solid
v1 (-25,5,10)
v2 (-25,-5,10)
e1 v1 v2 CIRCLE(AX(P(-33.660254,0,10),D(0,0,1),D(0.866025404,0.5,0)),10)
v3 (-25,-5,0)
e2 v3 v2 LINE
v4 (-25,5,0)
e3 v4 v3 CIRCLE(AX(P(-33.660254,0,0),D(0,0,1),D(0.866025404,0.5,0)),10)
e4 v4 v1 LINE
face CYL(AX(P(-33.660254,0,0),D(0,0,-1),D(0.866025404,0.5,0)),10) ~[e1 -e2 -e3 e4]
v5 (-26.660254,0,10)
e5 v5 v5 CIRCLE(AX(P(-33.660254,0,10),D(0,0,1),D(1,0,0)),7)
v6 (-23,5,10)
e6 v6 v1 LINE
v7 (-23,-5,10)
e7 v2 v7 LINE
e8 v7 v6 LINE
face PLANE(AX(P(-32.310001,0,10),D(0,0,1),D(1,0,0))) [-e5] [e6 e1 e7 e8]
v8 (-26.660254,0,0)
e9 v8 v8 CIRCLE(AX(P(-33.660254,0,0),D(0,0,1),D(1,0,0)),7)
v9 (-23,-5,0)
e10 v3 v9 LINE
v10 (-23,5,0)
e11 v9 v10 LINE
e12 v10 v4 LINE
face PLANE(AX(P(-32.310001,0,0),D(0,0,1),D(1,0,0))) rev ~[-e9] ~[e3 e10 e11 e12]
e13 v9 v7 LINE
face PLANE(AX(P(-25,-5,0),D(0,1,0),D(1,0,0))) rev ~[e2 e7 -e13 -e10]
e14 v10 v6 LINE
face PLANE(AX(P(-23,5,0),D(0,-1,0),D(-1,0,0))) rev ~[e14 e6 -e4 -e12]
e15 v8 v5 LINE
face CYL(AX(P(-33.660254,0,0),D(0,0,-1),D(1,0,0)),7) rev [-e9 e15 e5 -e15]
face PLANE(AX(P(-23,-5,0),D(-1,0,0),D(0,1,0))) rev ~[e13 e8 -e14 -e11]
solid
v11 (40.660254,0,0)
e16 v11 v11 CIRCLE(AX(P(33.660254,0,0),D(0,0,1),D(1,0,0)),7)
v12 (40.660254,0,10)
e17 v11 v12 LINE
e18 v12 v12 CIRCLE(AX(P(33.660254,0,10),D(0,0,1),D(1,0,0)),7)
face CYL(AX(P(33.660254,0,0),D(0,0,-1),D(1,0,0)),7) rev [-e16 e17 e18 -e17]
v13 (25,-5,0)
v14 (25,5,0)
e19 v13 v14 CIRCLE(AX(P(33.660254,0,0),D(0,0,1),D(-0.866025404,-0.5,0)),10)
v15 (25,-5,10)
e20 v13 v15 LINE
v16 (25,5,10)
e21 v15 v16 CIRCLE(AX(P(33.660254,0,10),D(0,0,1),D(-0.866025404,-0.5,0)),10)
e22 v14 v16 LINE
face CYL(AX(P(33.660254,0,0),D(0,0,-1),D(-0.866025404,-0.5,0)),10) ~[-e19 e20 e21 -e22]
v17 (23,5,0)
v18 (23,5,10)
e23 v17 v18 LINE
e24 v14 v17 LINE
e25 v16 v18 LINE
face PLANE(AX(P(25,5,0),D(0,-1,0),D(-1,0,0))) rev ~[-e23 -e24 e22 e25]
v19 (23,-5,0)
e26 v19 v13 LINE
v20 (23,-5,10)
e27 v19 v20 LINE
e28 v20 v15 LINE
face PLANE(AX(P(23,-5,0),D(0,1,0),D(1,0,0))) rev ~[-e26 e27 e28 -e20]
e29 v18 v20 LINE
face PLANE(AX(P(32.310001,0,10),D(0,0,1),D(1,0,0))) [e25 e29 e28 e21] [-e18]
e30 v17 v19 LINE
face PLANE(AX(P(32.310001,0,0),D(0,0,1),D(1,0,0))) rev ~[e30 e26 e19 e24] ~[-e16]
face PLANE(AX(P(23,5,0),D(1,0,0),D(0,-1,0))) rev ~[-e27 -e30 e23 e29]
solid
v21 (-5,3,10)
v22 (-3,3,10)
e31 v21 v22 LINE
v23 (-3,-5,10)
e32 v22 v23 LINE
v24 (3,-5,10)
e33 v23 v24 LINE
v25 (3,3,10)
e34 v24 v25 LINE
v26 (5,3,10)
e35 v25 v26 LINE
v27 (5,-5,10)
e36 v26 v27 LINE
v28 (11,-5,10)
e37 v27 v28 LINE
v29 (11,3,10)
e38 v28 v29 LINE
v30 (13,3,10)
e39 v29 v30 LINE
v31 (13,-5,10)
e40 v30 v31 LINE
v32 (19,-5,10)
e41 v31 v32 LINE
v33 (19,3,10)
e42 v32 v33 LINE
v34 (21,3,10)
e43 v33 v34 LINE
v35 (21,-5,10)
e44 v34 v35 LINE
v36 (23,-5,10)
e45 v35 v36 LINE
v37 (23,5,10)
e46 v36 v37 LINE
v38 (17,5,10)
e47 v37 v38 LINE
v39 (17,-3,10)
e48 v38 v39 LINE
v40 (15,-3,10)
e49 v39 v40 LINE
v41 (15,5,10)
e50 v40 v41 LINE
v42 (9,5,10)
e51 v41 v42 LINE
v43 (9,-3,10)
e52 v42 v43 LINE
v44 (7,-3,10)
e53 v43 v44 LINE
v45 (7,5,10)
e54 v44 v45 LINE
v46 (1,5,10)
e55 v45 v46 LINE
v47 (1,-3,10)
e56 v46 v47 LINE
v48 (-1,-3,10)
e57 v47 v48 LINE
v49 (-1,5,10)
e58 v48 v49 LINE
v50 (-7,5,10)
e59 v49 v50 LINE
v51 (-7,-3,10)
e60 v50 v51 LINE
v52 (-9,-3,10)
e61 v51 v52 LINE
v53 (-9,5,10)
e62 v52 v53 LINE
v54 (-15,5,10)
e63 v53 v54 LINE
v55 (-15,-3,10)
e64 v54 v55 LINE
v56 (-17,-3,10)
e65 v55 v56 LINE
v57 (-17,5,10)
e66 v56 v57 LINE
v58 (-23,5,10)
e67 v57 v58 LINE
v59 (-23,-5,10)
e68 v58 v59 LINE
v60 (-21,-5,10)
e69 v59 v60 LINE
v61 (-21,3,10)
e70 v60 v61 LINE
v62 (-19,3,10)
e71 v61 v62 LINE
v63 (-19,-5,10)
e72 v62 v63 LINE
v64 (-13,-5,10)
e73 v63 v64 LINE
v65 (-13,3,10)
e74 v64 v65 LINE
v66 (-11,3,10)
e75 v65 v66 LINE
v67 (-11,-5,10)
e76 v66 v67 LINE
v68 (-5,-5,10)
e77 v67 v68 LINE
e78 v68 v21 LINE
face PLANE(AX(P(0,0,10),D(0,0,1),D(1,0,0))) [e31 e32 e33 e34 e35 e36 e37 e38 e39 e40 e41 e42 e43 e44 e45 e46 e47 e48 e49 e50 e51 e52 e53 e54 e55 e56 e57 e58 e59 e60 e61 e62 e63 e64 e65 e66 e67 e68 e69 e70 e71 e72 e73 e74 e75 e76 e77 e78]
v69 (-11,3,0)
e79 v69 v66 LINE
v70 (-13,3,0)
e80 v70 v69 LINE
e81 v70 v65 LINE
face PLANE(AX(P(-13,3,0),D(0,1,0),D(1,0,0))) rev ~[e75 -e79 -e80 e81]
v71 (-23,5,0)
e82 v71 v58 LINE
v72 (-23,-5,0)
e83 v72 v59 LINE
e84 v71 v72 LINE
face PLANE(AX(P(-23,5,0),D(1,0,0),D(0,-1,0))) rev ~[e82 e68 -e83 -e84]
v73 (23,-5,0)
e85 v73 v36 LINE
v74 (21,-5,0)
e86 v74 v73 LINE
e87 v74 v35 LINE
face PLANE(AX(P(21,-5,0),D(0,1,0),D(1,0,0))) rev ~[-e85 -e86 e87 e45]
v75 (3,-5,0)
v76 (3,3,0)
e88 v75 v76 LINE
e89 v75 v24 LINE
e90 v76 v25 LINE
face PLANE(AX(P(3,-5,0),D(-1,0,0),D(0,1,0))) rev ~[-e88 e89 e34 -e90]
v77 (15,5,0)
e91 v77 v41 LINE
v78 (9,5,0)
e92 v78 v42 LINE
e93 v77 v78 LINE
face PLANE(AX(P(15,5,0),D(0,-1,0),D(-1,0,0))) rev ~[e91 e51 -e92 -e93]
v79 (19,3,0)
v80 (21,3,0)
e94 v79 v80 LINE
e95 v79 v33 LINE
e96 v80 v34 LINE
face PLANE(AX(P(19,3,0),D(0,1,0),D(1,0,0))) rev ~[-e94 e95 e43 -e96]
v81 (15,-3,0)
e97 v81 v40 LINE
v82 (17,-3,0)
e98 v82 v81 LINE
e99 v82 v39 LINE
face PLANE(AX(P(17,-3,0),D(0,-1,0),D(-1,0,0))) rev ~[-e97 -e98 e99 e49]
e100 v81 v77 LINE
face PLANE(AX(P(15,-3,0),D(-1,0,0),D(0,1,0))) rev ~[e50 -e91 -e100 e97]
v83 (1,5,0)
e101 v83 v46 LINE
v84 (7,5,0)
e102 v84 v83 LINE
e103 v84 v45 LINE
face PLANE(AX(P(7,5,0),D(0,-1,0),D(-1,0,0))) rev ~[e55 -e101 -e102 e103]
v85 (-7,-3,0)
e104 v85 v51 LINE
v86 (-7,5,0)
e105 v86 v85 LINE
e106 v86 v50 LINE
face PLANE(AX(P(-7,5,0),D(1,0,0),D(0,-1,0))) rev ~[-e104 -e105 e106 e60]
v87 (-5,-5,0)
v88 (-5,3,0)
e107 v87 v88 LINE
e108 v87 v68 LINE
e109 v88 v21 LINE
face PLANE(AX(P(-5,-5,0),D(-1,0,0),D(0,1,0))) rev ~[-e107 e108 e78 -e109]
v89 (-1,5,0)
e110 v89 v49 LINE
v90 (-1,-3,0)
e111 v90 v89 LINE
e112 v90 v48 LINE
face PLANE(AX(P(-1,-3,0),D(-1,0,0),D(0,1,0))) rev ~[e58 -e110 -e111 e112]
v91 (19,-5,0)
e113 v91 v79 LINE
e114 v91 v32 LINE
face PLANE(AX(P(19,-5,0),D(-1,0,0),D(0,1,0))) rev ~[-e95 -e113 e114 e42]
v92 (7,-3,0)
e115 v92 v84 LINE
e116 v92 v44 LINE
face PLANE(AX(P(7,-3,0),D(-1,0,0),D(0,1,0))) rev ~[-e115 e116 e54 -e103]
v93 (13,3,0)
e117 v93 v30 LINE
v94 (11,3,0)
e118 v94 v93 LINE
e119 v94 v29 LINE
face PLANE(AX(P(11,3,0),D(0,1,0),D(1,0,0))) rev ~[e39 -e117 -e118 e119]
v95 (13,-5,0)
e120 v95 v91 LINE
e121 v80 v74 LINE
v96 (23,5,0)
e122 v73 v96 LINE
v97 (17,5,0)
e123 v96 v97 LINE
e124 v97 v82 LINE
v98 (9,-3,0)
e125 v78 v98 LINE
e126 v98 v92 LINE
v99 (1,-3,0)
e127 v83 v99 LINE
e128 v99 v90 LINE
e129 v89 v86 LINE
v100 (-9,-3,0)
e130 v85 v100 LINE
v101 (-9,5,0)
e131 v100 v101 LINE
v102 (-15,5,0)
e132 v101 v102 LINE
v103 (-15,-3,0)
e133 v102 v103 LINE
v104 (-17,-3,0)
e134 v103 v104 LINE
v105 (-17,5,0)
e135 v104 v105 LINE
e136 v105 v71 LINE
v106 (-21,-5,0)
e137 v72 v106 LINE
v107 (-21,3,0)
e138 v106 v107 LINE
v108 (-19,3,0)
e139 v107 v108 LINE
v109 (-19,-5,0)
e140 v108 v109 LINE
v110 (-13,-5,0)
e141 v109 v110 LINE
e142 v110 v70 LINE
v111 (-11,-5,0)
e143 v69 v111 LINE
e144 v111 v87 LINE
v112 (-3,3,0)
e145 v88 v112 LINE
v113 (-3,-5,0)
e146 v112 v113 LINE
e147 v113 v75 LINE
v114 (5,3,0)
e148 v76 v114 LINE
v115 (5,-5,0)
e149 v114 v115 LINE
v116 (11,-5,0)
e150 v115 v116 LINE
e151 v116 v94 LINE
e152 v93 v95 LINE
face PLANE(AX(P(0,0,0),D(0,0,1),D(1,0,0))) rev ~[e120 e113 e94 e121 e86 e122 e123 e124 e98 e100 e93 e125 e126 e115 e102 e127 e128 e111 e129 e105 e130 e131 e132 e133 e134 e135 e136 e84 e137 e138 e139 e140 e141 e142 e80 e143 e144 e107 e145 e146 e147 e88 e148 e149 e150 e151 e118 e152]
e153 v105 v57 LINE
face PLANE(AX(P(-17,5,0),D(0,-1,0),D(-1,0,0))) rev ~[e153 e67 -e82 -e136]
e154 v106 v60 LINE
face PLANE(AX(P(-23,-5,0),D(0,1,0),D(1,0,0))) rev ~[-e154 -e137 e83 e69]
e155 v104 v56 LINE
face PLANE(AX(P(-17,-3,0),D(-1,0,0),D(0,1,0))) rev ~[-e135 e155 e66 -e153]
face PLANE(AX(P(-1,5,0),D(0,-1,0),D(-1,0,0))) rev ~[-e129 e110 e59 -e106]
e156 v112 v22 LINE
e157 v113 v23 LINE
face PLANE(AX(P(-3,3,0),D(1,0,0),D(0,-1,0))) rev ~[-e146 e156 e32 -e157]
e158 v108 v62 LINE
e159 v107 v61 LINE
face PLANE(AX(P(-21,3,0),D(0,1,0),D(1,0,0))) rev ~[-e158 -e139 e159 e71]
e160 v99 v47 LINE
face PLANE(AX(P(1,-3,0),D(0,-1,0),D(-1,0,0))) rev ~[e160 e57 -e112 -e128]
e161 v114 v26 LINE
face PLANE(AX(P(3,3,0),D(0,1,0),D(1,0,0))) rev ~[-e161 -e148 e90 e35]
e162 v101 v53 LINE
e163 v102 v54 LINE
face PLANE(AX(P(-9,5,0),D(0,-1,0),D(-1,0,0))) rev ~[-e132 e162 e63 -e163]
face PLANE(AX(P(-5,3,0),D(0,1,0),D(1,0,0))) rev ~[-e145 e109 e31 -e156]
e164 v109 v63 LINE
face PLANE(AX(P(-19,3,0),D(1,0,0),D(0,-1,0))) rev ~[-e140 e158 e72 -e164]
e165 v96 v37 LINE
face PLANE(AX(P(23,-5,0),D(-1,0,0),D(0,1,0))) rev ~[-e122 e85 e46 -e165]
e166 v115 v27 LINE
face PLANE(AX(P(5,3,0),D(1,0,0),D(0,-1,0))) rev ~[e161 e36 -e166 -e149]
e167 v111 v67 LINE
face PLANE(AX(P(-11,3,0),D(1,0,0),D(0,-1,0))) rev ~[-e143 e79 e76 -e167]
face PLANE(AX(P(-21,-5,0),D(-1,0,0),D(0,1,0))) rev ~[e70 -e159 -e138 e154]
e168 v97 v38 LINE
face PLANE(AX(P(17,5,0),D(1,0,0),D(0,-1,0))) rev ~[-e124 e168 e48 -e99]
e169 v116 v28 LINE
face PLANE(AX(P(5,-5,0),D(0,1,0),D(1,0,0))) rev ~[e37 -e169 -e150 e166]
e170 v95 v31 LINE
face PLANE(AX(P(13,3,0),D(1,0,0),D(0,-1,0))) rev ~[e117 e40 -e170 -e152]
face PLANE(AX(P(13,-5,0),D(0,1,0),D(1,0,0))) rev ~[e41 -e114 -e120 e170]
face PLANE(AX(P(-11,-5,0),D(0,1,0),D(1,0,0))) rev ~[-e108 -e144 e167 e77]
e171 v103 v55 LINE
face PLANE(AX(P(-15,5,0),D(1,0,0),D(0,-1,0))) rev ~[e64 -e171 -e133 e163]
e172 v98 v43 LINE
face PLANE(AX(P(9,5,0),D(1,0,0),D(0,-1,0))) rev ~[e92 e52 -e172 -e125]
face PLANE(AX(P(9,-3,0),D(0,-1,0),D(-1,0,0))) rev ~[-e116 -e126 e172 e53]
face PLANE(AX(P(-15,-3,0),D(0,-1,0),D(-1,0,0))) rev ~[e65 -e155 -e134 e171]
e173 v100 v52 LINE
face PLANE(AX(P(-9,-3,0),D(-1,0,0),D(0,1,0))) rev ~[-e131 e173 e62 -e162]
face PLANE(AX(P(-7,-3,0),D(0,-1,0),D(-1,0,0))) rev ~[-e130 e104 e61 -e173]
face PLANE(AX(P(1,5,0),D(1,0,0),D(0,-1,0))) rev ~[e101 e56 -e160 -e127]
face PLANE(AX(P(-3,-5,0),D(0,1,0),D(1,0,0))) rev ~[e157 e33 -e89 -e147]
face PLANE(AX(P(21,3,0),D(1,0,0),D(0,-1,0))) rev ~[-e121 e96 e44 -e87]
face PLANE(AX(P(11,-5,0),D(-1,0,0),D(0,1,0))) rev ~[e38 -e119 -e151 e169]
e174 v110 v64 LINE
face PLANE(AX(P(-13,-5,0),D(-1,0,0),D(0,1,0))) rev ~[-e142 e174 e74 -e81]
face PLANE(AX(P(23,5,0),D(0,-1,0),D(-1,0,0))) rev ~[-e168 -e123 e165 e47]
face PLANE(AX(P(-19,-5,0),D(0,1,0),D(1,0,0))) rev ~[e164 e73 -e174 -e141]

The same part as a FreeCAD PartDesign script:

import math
import FreeCAD as App
import Part
import Sketcher

V = App.Vector


def add_polygon(sketch, points):
    """Adds a closed chain of lines whose ends are joined by coincident constraints."""
    first, n = sketch.GeometryCount, len(points)
    for a, b in zip(points, points[1:] + points[:1]):
        sketch.addGeometry(Part.LineSegment(App.Vector(*a, 0), App.Vector(*b, 0)), False)
    for i in range(n):
        sketch.addConstraint(Sketcher.Constraint("Coincident", first + i, 2, first + (i + 1) % n, 1))

doc = App.newDocument("Part")
body = doc.addObject("PartDesign::Body", "Body")

sketch1 = doc.addObject("Sketcher::SketchObject", "Sketch")
body.addObject(sketch1)
sketch1.AttachmentSupport = (doc.XY_Plane, [""])
sketch1.MapMode = "FlatFace"
sketch1.addGeometry([
    Part.LineSegment(V(-23, 5, 0), V(-25, 5, 0)),
    Part.ArcOfCircle(Part.Circle(V(-33.7, 0, 0), V(0, 0, 1), 10), math.radians(30), math.radians(330)),
    Part.LineSegment(V(-25, -5, 0), V(-23, -5, 0)),
    Part.LineSegment(V(-23, -5, 0), V(-23, 5, 0)),
    Part.Circle(V(-33.7, 0, 0), V(0, 0, 1), 7),
], False)
sketch1.addConstraint([
    Sketcher.Constraint("Coincident", 0, 2, 1, 1),
    Sketcher.Constraint("Coincident", 1, 2, 2, 1),
    Sketcher.Constraint("Coincident", 2, 2, 3, 1),
    Sketcher.Constraint("Coincident", 3, 2, 0, 1),
    Sketcher.Constraint("Horizontal", 0),
    Sketcher.Constraint("Horizontal", 2),
    Sketcher.Constraint("Vertical", 3),
    Sketcher.Constraint("Coincident", 4, 3, 1, 3),
    Sketcher.Constraint("Symmetric", 0, 2, 1, 2, -1),
    Sketcher.Constraint("Diameter", 4, 14.0),
    Sketcher.Constraint("Radius", 1, 10.0),
    Sketcher.Constraint("DistanceX", 0, 2, 0, 1, 2.0),
    Sketcher.Constraint("DistanceY", 3, 1, 3, 2, 10.0),
    Sketcher.Constraint("DistanceX", 0, 2, -1, 1, 25.0),
])
pad1 = doc.addObject("PartDesign::Pad", "Pad")
body.addObject(pad1)
pad1.Profile = sketch1
pad1.Length = 10
body2 = doc.addObject("PartDesign::Body", "Body001")

sketch2 = doc.addObject("Sketcher::SketchObject", "Sketch001")
body2.addObject(sketch2)
sketch2.AttachmentSupport = (doc.getObject("XY_Plane001"), [""])
sketch2.MapMode = "FlatFace"
sketch2.addGeometry([
    Part.LineSegment(V(25, 5, 0), V(23, 5, 0)),
    Part.LineSegment(V(23, 5, 0), V(23, -5, 0)),
    Part.LineSegment(V(23, -5, 0), V(25, -5, 0)),
    Part.ArcOfCircle(Part.Circle(V(33.7, 0, 0), V(0, 0, 1), 10), math.radians(-150), math.radians(150)),
    Part.Circle(V(33.7, 0, 0), V(0, 0, 1), 7),
], False)
sketch2.addConstraint([
    Sketcher.Constraint("Coincident", 0, 2, 1, 1),
    Sketcher.Constraint("Coincident", 1, 2, 2, 1),
    Sketcher.Constraint("Coincident", 2, 2, 3, 1),
    Sketcher.Constraint("Coincident", 3, 2, 0, 1),
    Sketcher.Constraint("Horizontal", 0),
    Sketcher.Constraint("Vertical", 1),
    Sketcher.Constraint("Horizontal", 2),
    Sketcher.Constraint("Coincident", 4, 3, 3, 3),
    Sketcher.Constraint("Symmetric", 2, 2, 3, 2, -1),
    Sketcher.Constraint("Diameter", 4, 14.0),
    Sketcher.Constraint("Radius", 3, 10.0),
    Sketcher.Constraint("DistanceX", 0, 2, 0, 1, 2.0),
    Sketcher.Constraint("DistanceY", 1, 2, 1, 1, 10.0),
    Sketcher.Constraint("DistanceX", -1, 1, 0, 2, 23.0),
])
pad2 = doc.addObject("PartDesign::Pad", "Pad001")
body2.addObject(pad2)
pad2.Profile = sketch2
pad2.Length = 10
body3 = doc.addObject("PartDesign::Body", "Body002")

sketch3 = doc.addObject("Sketcher::SketchObject", "Sketch002")
body3.addObject(sketch3)
sketch3.AttachmentSupport = (doc.getObject("XY_Plane002"), [""])
sketch3.MapMode = "FlatFace"
add_polygon(sketch3, [(-17, 5), (-23, 5), (-23, -5), (-21, -5), (-21, 3), (-19, 3), (-19, -5), (-13, -5), (-13, 3), (-11, 3), (-11, -5), (-5, -5), (-5, 3), (-3, 3), (-3, -5), (3, -5), (3, 3), (5, 3), (5, -5), (11, -5), (11, 3), (13, 3), (13, -5), (19, -5), (19, 3), (21, 3), (21, -5), (23, -5), (23, 5), (17, 5), (17, -3), (15, -3), (15, 5), (9, 5), (9, -3), (7, -3), (7, 5), (1, 5), (1, -3), (-1, -3), (-1, 5), (-7, 5), (-7, -3), (-9, -3), (-9, 5), (-15, 5), (-15, -3), (-17, -3)])
sketch3.addConstraint([
    Sketcher.Constraint("Horizontal", 0),
    Sketcher.Constraint("Vertical", 1),
    Sketcher.Constraint("Horizontal", 2),
    Sketcher.Constraint("Vertical", 3),
    Sketcher.Constraint("Horizontal", 4),
    Sketcher.Constraint("Vertical", 5),
    Sketcher.Constraint("Horizontal", 6),
    Sketcher.Constraint("Vertical", 7),
    Sketcher.Constraint("Horizontal", 8),
    Sketcher.Constraint("Vertical", 9),
    Sketcher.Constraint("Horizontal", 10),
    Sketcher.Constraint("Vertical", 11),
    Sketcher.Constraint("Horizontal", 12),
    Sketcher.Constraint("Vertical", 13),
    Sketcher.Constraint("Horizontal", 14),
    Sketcher.Constraint("Vertical", 15),
    Sketcher.Constraint("Horizontal", 16),
    Sketcher.Constraint("Vertical", 17),
    Sketcher.Constraint("Horizontal", 18),
    Sketcher.Constraint("Vertical", 19),
    Sketcher.Constraint("Horizontal", 20),
    Sketcher.Constraint("Vertical", 21),
    Sketcher.Constraint("Horizontal", 22),
    Sketcher.Constraint("Vertical", 23),
    Sketcher.Constraint("Horizontal", 24),
    Sketcher.Constraint("Vertical", 25),
    Sketcher.Constraint("Horizontal", 26),
    Sketcher.Constraint("Vertical", 27),
    Sketcher.Constraint("Horizontal", 28),
    Sketcher.Constraint("Vertical", 29),
    Sketcher.Constraint("Horizontal", 30),
    Sketcher.Constraint("Vertical", 31),
    Sketcher.Constraint("Horizontal", 32),
    Sketcher.Constraint("Vertical", 33),
    Sketcher.Constraint("Horizontal", 34),
    Sketcher.Constraint("Vertical", 35),
    Sketcher.Constraint("Horizontal", 36),
    Sketcher.Constraint("Vertical", 37),
    Sketcher.Constraint("Horizontal", 38),
    Sketcher.Constraint("Vertical", 39),
    Sketcher.Constraint("Horizontal", 40),
    Sketcher.Constraint("Vertical", 41),
    Sketcher.Constraint("Horizontal", 42),
    Sketcher.Constraint("Vertical", 43),
    Sketcher.Constraint("Horizontal", 44),
    Sketcher.Constraint("Vertical", 45),
    Sketcher.Constraint("Horizontal", 46),
    Sketcher.Constraint("Vertical", 47),
    Sketcher.Constraint("Symmetric", 0, 2, 26, 2, -1, 1),
    Sketcher.Constraint("Symmetric", 12, 2, 15, 2, -2),
    Sketcher.Constraint("Symmetric", 10, 2, 17, 2, -2),
    Sketcher.Constraint("Symmetric", 8, 2, 19, 2, -2),
    Sketcher.Constraint("Symmetric", 6, 2, 21, 2, -2),
    Sketcher.Constraint("Symmetric", 4, 2, 23, 2, -2),
    Sketcher.Constraint("Symmetric", 2, 2, 25, 2, -2),
    Sketcher.Constraint("Symmetric", 36, 2, 39, 2, -2),
    Sketcher.Constraint("Symmetric", 34, 2, 41, 2, -2),
    Sketcher.Constraint("Symmetric", 32, 2, 43, 2, -2),
    Sketcher.Constraint("Symmetric", 30, 2, 45, 2, -2),
    Sketcher.Constraint("Symmetric", 28, 2, 47, 2, -2),
    Sketcher.Constraint("Horizontal", 2, 2, 5, 2),
    Sketcher.Constraint("Horizontal", 4, 2, 7, 2),
    Sketcher.Constraint("Horizontal", 6, 2, 9, 2),
    Sketcher.Constraint("Horizontal", 8, 2, 11, 2),
    Sketcher.Constraint("Horizontal", 10, 2, 13, 2),
    Sketcher.Constraint("Horizontal", 28, 2, 31, 2),
    Sketcher.Constraint("Horizontal", 30, 2, 33, 2),
    Sketcher.Constraint("Horizontal", 32, 2, 35, 2),
    Sketcher.Constraint("Horizontal", 34, 2, 37, 2),
    Sketcher.Constraint("Equal", 2, 4),
    Sketcher.Constraint("Equal", 0, 6),
    Sketcher.Constraint("Equal", 4, 8),
    Sketcher.Constraint("Equal", 6, 10),
    Sketcher.Constraint("Equal", 8, 12),
    Sketcher.Constraint("Equal", 10, 14),
    Sketcher.Constraint("Equal", 26, 30),
    Sketcher.Constraint("Equal", 28, 32),
    Sketcher.Constraint("Equal", 30, 34),
    Sketcher.Constraint("Equal", 32, 36),
    Sketcher.Constraint("Equal", 34, 38),
    Sketcher.Constraint("Equal", 25, 29),
    Sketcher.Constraint("DistanceX", 0, 2, 0, 1, 6.0),
    Sketcher.Constraint("DistanceY", 1, 2, 1, 1, 10.0),
    Sketcher.Constraint("DistanceY", 3, 1, 3, 2, 8.0),
])
pad3 = doc.addObject("PartDesign::Pad", "Pad002")
body3.addObject(pad3)
pad3.Profile = sketch3
pad3.Length = 10

doc.recompute()
